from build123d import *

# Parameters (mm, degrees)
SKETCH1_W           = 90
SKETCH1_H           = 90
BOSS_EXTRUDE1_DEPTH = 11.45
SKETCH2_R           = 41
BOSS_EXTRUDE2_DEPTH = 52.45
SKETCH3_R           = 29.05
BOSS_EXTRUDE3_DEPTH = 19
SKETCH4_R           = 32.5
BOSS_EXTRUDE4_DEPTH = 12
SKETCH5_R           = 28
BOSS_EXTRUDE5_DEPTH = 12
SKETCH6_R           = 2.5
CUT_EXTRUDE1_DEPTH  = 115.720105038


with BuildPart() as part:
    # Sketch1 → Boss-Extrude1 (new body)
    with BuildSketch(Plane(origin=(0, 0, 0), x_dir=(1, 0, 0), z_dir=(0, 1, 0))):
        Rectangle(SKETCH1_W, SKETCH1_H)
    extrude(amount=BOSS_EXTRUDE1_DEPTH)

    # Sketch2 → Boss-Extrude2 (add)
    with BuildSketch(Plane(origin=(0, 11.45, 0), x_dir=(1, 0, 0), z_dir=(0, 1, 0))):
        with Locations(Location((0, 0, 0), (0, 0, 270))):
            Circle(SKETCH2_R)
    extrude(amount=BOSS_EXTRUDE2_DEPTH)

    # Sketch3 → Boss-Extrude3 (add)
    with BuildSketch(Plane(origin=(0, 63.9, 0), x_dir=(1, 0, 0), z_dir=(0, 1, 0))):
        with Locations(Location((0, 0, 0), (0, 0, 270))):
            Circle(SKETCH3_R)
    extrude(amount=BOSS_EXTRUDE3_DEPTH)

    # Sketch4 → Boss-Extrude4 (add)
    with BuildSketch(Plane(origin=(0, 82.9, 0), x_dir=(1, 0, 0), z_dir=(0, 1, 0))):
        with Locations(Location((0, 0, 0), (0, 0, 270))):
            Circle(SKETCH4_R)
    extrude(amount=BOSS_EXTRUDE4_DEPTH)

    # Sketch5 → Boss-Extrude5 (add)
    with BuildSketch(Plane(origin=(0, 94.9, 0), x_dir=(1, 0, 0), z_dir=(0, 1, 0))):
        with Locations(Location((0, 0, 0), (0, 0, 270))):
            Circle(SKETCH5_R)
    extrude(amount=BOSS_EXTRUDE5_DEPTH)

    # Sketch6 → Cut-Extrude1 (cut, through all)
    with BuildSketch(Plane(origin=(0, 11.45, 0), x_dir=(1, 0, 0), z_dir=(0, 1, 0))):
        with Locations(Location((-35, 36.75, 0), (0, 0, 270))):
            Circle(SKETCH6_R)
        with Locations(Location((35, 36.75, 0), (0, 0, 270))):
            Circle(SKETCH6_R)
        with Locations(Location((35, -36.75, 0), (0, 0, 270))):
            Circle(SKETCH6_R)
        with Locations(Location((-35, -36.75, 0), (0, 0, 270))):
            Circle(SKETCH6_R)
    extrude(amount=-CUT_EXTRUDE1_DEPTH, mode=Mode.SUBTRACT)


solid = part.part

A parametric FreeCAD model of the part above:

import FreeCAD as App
import Part
import Sketcher
Q = App.Units.Quantity


def add_polygon(sketch, points):
    """Adds a closed chain of lines whose ends are joined by coincident constraints."""
    first, n = sketch.GeometryCount, len(points)
    for a, b in zip(points, points[1:] + points[:1]):
        sketch.addGeometry(Part.LineSegment(App.Vector(*a, 0), App.Vector(*b, 0)), False)
    for i in range(n):
        sketch.addConstraint(Sketcher.Constraint("Coincident", first + i, 2, first + (i + 1) % n, 1))

doc = App.newDocument("Part")
body = doc.addObject("PartDesign::Body", "Body")

sketch1 = doc.addObject("Sketcher::SketchObject", "Sketch")
body.addObject(sketch1)
sketch1.AttachmentSupport = (doc.XZ_Plane, [""])
sketch1.MapMode = "FlatFace"
add_polygon(sketch1, [(-45, -45), (-45, 45), (45, 45), (45, -45)])
sketch1.addConstraint(Sketcher.Constraint("Vertical", 0))
sketch1.addConstraint(Sketcher.Constraint("Horizontal", 1))
sketch1.addConstraint(Sketcher.Constraint("Vertical", 2))
sketch1.addConstraint(Sketcher.Constraint("Horizontal", 3))
sketch1.addConstraint(Sketcher.Constraint("Symmetric", 0, 2, 2, 2, -1, 1))
sketch1.addConstraint(Sketcher.Constraint("Equal", 3, 0))
sketch1.addConstraint(Sketcher.Constraint("DistanceX", 1, 1, 1, 2, Q("90 mm")))
pad1 = doc.addObject("PartDesign::Pad", "Pad")
body.addObject(pad1)
pad1.Profile = sketch1
pad1.Length = 11.45
pad1.Reversed = True

sketch2 = doc.addObject("Sketcher::SketchObject", "Sketch001")
body.addObject(sketch2)
sketch2.AttachmentSupport = (doc.XZ_Plane, [""])
sketch2.MapMode = "FlatFace"
sketch2.AttachmentOffset = App.Placement(App.Vector(0, 0, -11.45), App.Rotation())
sketch2.addGeometry(Part.Circle(App.Vector(0, 0, 0), App.Vector(0, 0, 1), 41), False)
sketch2.addConstraint(Sketcher.Constraint("Coincident", 0, 3, -1, 1))
sketch2.addConstraint(Sketcher.Constraint("Diameter", 0, Q("82 mm")))
pad2 = doc.addObject("PartDesign::Pad", "Pad001")
body.addObject(pad2)
pad2.Profile = sketch2
pad2.Length = 52.45
pad2.Reversed = True

sketch3 = doc.addObject("Sketcher::SketchObject", "Sketch002")
body.addObject(sketch3)
sketch3.AttachmentSupport = (doc.XZ_Plane, [""])
sketch3.MapMode = "FlatFace"
sketch3.AttachmentOffset = App.Placement(App.Vector(0, 0, -63.9), App.Rotation())
sketch3.addGeometry(Part.Circle(App.Vector(0, 0, 0), App.Vector(0, 0, 1), 29), False)
sketch3.addConstraint(Sketcher.Constraint("Coincident", 0, 3, -1, 1))
sketch3.addConstraint(Sketcher.Constraint("Diameter", 0, Q("58.1 mm")))
pad3 = doc.addObject("PartDesign::Pad", "Pad002")
body.addObject(pad3)
pad3.Profile = sketch3
pad3.Length = 19
pad3.Reversed = True

sketch4 = doc.addObject("Sketcher::SketchObject", "Sketch003")
body.addObject(sketch4)
sketch4.AttachmentSupport = (doc.XZ_Plane, [""])
sketch4.MapMode = "FlatFace"
sketch4.AttachmentOffset = App.Placement(App.Vector(0, 0, -82.9), App.Rotation())
sketch4.addGeometry(Part.Circle(App.Vector(0, 0, 0), App.Vector(0, 0, 1), 32), False)
sketch4.addConstraint(Sketcher.Constraint("Coincident", 0, 3, -1, 1))
sketch4.addConstraint(Sketcher.Constraint("Diameter", 0, Q("65 mm")))
pad4 = doc.addObject("PartDesign::Pad", "Pad003")
body.addObject(pad4)
pad4.Profile = sketch4
pad4.Length = 12
pad4.Reversed = True

sketch5 = doc.addObject("Sketcher::SketchObject", "Sketch004")
body.addObject(sketch5)
sketch5.AttachmentSupport = (doc.XZ_Plane, [""])
sketch5.MapMode = "FlatFace"
sketch5.AttachmentOffset = App.Placement(App.Vector(0, 0, -94.9), App.Rotation())
sketch5.addGeometry(Part.Circle(App.Vector(0, 0, 0), App.Vector(0, 0, 1), 28), False)
sketch5.addConstraint(Sketcher.Constraint("Coincident", 0, 3, -1, 1))
sketch5.addConstraint(Sketcher.Constraint("Diameter", 0, Q("56 mm")))
pad5 = doc.addObject("PartDesign::Pad", "Pad004")
body.addObject(pad5)
pad5.Profile = sketch5
pad5.Length = 12
pad5.Reversed = True

sketch6 = doc.addObject("Sketcher::SketchObject", "Sketch005")
body.addObject(sketch6)
sketch6.AttachmentSupport = (doc.XZ_Plane, [""])
sketch6.MapMode = "FlatFace"
sketch6.AttachmentOffset = App.Placement(App.Vector(0, 0, -11.45), App.Rotation())
sketch6.addGeometry(Part.Circle(App.Vector(-35, -36.8, 0), App.Vector(0, 0, 1), 2.5), False)
sketch6.addGeometry(Part.Circle(App.Vector(35, -36.8, 0), App.Vector(0, 0, 1), 2.5), False)
sketch6.addGeometry(Part.Circle(App.Vector(35, 36.8, 0), App.Vector(0, 0, 1), 2.5), False)
sketch6.addGeometry(Part.Circle(App.Vector(-35, 36.8, 0), App.Vector(0, 0, 1), 2.5), False)
sketch6.addConstraint(Sketcher.Constraint("Equal", 0, 1))
sketch6.addConstraint(Sketcher.Constraint("Equal", 1, 2))
sketch6.addConstraint(Sketcher.Constraint("Equal", 2, 3))
sketch6.addConstraint(Sketcher.Constraint("Symmetric", 0, 3, 2, 3, -1, 1))
sketch6.addConstraint(Sketcher.Constraint("Symmetric", 1, 3, 3, 3, -1, 1))
sketch6.addConstraint(Sketcher.Constraint("Symmetric", 0, 3, 1, 3, -2))
sketch6.addConstraint(Sketcher.Constraint("Diameter", 0, Q("5 mm")))
sketch6.addConstraint(Sketcher.Constraint("DistanceX", 0, 3, -1, 1, Q("35 mm")))
sketch6.addConstraint(Sketcher.Constraint("DistanceY", 1, 3, 2, 3, Q("73.5 mm")))
pocket1 = doc.addObject("PartDesign::Pocket", "Pocket")
body.addObject(pocket1)
pocket1.Profile = sketch6
pocket1.Type = "ThroughAll"
pocket1.Reversed = True

doc.recompute()
